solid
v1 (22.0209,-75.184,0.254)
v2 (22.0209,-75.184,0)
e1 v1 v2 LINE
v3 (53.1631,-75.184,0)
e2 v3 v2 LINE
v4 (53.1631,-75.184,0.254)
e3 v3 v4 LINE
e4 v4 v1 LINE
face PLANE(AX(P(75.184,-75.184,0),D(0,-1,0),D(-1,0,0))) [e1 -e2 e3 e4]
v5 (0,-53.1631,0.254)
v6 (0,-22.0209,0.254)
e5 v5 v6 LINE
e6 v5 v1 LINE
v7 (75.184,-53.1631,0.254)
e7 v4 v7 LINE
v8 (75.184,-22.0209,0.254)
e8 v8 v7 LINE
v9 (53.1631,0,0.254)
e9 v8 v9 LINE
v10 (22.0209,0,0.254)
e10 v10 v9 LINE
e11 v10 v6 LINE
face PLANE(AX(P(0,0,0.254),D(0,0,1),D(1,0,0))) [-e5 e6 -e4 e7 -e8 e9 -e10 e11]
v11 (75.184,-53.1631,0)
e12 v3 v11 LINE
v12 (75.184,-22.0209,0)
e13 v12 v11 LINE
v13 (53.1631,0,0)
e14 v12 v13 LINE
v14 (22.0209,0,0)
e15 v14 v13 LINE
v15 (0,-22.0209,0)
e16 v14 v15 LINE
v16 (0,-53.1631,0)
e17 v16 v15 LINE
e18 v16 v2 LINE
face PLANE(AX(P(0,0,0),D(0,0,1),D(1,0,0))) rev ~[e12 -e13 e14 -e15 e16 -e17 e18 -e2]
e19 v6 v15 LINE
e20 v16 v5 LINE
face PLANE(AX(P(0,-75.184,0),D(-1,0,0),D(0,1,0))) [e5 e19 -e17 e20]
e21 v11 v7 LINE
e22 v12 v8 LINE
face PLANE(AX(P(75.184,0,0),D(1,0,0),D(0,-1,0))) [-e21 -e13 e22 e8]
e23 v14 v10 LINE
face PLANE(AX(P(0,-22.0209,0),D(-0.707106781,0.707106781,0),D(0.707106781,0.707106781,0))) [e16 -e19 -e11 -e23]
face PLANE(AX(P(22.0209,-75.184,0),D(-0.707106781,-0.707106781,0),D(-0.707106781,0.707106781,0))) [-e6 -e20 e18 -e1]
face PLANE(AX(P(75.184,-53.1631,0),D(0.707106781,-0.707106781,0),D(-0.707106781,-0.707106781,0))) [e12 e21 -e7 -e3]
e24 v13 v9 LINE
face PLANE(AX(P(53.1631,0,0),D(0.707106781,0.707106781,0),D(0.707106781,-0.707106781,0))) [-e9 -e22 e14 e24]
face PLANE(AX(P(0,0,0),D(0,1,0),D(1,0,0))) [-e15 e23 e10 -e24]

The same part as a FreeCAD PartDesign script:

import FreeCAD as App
import Part
import Sketcher

V = App.Vector
Q = App.Units.Quantity

doc = App.newDocument("Part")
body = doc.addObject("PartDesign::Body", "Body")

sketch1 = body.newObject("Sketcher::SketchObject", "Sketch")
sketch1.AttachmentSupport = (doc.getObject("XY_Plane"), [""])
sketch1.MapMode = "FlatFace"
sketch1.addGeometry(Part.LineSegment(V(75, 0, 0), V(0, 0, 0)), False)
sketch1.addGeometry(Part.LineSegment(V(0, 0, 0), V(0, -75, 0)), False)
sketch1.addGeometry(Part.LineSegment(V(0, -75, 0), V(75, -75, 0)), False)
sketch1.addGeometry(Part.LineSegment(V(75, -75, 0), V(75, 0, 0)), False)
sketch1.addConstraint(Sketcher.Constraint("Coincident", 0, 2, 1, 1))
sketch1.addConstraint(Sketcher.Constraint("Coincident", 1, 2, 2, 1))
sketch1.addConstraint(Sketcher.Constraint("Coincident", 2, 2, 3, 1))
sketch1.addConstraint(Sketcher.Constraint("Coincident", 3, 2, 0, 1))
sketch1.addConstraint(Sketcher.Constraint("Horizontal", 0))
sketch1.addConstraint(Sketcher.Constraint("Vertical", 1))
sketch1.addConstraint(Sketcher.Constraint("Horizontal", 2))
sketch1.addConstraint(Sketcher.Constraint("Vertical", 3))
sketch1.addConstraint(Sketcher.Constraint("Coincident", 0, 2, -1, 1))
sketch1.addConstraint(Sketcher.Constraint("Equal", 2, 1))
sketch1.addConstraint(Sketcher.Constraint("DistanceX", 0, 2, 0, 1, Q("2.96 in")))
pad1 = body.newObject("PartDesign::Pad", "Pad")
pad1.Profile = sketch1
pad1.Length = Q("0.01 in")

sketch2 = body.newObject("Sketcher::SketchObject", "Sketch001")
sketch2.AttachmentSupport = (doc.getObject("XY_Plane"), [""])
sketch2.MapMode = "FlatFace"
sketch2.addGeometry(Part.LineSegment(V(0, -22, 0), V(22, 0, 0)), False)
sketch2.addGeometry(Part.LineSegment(V(22, 0, 0), V(0, 0, 0)), False)
sketch2.addGeometry(Part.LineSegment(V(0, 0, 0), V(0, -22, 0)), False)
sketch2.addGeometry(Part.LineSegment(V(75, 0, 0), V(53, 0, 0)), False)
sketch2.addGeometry(Part.LineSegment(V(53, 0, 0), V(75, -22, 0)), False)
sketch2.addGeometry(Part.LineSegment(V(75, -22, 0), V(75, 0, 0)), False)
sketch2.addGeometry(Part.LineSegment(V(22, -75, 0), V(0, -53, 0)), False)
sketch2.addGeometry(Part.LineSegment(V(0, -53, 0), V(0, -75, 0)), False)
sketch2.addGeometry(Part.LineSegment(V(0, -75, 0), V(22, -75, 0)), False)
sketch2.addGeometry(Part.LineSegment(V(75, -75, 0), V(75, -53, 0)), False)
sketch2.addGeometry(Part.LineSegment(V(75, -53, 0), V(53, -75, 0)), False)
sketch2.addGeometry(Part.LineSegment(V(53, -75, 0), V(75, -75, 0)), False)
sketch2.addConstraint(Sketcher.Constraint("Coincident", 0, 2, 1, 1))
sketch2.addConstraint(Sketcher.Constraint("Coincident", 1, 2, 2, 1))
sketch2.addConstraint(Sketcher.Constraint("Coincident", 2, 2, 0, 1))
sketch2.addConstraint(Sketcher.Constraint("Coincident", 3, 2, 4, 1))
sketch2.addConstraint(Sketcher.Constraint("Coincident", 4, 2, 5, 1))
sketch2.addConstraint(Sketcher.Constraint("Coincident", 5, 2, 3, 1))
sketch2.addConstraint(Sketcher.Constraint("Coincident", 6, 2, 7, 1))
sketch2.addConstraint(Sketcher.Constraint("Coincident", 7, 2, 8, 1))
sketch2.addConstraint(Sketcher.Constraint("Coincident", 8, 2, 6, 1))
sketch2.addConstraint(Sketcher.Constraint("Coincident", 9, 2, 10, 1))
sketch2.addConstraint(Sketcher.Constraint("Coincident", 10, 2, 11, 1))
sketch2.addConstraint(Sketcher.Constraint("Coincident", 11, 2, 9, 1))
sketch2.addConstraint(Sketcher.Constraint("Horizontal", 1))
sketch2.addConstraint(Sketcher.Constraint("Vertical", 2))
sketch2.addConstraint(Sketcher.Constraint("Horizontal", 3))
sketch2.addConstraint(Sketcher.Constraint("Vertical", 5))
sketch2.addConstraint(Sketcher.Constraint("Vertical", 7))
sketch2.addConstraint(Sketcher.Constraint("Horizontal", 8))
sketch2.addConstraint(Sketcher.Constraint("Vertical", 9))
sketch2.addConstraint(Sketcher.Constraint("Horizontal", 11))
sketch2.addConstraint(Sketcher.Constraint("Coincident", 1, 2, -1, 1))
sketch2.addConstraint(Sketcher.Constraint("PointOnObject", 3, 2, -1))
sketch2.addConstraint(Sketcher.Constraint("PointOnObject", 6, 2, -2))
sketch2.addConstraint(Sketcher.Constraint("Perpendicular", 0, 4))
sketch2.addConstraint(Sketcher.Constraint("Parallel", 4, 6))
sketch2.addConstraint(Sketcher.Constraint("Perpendicular", 6, 10))
sketch2.addConstraint(Sketcher.Constraint("Horizontal", 2, 2, 4, 2))
sketch2.addConstraint(Sketcher.Constraint("Horizontal", 6, 2, 9, 2))
sketch2.addConstraint(Sketcher.Constraint("Horizontal", 8, 2, 10, 2))
sketch2.addConstraint(Sketcher.Constraint("Vertical", 0, 2, 8, 2))
sketch2.addConstraint(Sketcher.Constraint("Vertical", 5, 2, 9, 2))
sketch2.addConstraint(Sketcher.Constraint("Vertical", 3, 2, 10, 2))
sketch2.addConstraint(Sketcher.Constraint("DistanceX", -1, 1, 4, 2, Q("2.96 in")))
sketch2.addConstraint(Sketcher.Constraint("DistanceY", 7, 2, -1, 1, Q("2.96 in")))
sketch2.addConstraint(Sketcher.Constraint("DistanceX", 1, 2, 1, 1, Q("22.021 mm")))
pocket1 = body.newObject("PartDesign::Pocket", "Pocket")
pocket1.Profile = sketch2
pocket1.Length = Q("1 in")
pocket1.Midplane = True

doc.recompute()
